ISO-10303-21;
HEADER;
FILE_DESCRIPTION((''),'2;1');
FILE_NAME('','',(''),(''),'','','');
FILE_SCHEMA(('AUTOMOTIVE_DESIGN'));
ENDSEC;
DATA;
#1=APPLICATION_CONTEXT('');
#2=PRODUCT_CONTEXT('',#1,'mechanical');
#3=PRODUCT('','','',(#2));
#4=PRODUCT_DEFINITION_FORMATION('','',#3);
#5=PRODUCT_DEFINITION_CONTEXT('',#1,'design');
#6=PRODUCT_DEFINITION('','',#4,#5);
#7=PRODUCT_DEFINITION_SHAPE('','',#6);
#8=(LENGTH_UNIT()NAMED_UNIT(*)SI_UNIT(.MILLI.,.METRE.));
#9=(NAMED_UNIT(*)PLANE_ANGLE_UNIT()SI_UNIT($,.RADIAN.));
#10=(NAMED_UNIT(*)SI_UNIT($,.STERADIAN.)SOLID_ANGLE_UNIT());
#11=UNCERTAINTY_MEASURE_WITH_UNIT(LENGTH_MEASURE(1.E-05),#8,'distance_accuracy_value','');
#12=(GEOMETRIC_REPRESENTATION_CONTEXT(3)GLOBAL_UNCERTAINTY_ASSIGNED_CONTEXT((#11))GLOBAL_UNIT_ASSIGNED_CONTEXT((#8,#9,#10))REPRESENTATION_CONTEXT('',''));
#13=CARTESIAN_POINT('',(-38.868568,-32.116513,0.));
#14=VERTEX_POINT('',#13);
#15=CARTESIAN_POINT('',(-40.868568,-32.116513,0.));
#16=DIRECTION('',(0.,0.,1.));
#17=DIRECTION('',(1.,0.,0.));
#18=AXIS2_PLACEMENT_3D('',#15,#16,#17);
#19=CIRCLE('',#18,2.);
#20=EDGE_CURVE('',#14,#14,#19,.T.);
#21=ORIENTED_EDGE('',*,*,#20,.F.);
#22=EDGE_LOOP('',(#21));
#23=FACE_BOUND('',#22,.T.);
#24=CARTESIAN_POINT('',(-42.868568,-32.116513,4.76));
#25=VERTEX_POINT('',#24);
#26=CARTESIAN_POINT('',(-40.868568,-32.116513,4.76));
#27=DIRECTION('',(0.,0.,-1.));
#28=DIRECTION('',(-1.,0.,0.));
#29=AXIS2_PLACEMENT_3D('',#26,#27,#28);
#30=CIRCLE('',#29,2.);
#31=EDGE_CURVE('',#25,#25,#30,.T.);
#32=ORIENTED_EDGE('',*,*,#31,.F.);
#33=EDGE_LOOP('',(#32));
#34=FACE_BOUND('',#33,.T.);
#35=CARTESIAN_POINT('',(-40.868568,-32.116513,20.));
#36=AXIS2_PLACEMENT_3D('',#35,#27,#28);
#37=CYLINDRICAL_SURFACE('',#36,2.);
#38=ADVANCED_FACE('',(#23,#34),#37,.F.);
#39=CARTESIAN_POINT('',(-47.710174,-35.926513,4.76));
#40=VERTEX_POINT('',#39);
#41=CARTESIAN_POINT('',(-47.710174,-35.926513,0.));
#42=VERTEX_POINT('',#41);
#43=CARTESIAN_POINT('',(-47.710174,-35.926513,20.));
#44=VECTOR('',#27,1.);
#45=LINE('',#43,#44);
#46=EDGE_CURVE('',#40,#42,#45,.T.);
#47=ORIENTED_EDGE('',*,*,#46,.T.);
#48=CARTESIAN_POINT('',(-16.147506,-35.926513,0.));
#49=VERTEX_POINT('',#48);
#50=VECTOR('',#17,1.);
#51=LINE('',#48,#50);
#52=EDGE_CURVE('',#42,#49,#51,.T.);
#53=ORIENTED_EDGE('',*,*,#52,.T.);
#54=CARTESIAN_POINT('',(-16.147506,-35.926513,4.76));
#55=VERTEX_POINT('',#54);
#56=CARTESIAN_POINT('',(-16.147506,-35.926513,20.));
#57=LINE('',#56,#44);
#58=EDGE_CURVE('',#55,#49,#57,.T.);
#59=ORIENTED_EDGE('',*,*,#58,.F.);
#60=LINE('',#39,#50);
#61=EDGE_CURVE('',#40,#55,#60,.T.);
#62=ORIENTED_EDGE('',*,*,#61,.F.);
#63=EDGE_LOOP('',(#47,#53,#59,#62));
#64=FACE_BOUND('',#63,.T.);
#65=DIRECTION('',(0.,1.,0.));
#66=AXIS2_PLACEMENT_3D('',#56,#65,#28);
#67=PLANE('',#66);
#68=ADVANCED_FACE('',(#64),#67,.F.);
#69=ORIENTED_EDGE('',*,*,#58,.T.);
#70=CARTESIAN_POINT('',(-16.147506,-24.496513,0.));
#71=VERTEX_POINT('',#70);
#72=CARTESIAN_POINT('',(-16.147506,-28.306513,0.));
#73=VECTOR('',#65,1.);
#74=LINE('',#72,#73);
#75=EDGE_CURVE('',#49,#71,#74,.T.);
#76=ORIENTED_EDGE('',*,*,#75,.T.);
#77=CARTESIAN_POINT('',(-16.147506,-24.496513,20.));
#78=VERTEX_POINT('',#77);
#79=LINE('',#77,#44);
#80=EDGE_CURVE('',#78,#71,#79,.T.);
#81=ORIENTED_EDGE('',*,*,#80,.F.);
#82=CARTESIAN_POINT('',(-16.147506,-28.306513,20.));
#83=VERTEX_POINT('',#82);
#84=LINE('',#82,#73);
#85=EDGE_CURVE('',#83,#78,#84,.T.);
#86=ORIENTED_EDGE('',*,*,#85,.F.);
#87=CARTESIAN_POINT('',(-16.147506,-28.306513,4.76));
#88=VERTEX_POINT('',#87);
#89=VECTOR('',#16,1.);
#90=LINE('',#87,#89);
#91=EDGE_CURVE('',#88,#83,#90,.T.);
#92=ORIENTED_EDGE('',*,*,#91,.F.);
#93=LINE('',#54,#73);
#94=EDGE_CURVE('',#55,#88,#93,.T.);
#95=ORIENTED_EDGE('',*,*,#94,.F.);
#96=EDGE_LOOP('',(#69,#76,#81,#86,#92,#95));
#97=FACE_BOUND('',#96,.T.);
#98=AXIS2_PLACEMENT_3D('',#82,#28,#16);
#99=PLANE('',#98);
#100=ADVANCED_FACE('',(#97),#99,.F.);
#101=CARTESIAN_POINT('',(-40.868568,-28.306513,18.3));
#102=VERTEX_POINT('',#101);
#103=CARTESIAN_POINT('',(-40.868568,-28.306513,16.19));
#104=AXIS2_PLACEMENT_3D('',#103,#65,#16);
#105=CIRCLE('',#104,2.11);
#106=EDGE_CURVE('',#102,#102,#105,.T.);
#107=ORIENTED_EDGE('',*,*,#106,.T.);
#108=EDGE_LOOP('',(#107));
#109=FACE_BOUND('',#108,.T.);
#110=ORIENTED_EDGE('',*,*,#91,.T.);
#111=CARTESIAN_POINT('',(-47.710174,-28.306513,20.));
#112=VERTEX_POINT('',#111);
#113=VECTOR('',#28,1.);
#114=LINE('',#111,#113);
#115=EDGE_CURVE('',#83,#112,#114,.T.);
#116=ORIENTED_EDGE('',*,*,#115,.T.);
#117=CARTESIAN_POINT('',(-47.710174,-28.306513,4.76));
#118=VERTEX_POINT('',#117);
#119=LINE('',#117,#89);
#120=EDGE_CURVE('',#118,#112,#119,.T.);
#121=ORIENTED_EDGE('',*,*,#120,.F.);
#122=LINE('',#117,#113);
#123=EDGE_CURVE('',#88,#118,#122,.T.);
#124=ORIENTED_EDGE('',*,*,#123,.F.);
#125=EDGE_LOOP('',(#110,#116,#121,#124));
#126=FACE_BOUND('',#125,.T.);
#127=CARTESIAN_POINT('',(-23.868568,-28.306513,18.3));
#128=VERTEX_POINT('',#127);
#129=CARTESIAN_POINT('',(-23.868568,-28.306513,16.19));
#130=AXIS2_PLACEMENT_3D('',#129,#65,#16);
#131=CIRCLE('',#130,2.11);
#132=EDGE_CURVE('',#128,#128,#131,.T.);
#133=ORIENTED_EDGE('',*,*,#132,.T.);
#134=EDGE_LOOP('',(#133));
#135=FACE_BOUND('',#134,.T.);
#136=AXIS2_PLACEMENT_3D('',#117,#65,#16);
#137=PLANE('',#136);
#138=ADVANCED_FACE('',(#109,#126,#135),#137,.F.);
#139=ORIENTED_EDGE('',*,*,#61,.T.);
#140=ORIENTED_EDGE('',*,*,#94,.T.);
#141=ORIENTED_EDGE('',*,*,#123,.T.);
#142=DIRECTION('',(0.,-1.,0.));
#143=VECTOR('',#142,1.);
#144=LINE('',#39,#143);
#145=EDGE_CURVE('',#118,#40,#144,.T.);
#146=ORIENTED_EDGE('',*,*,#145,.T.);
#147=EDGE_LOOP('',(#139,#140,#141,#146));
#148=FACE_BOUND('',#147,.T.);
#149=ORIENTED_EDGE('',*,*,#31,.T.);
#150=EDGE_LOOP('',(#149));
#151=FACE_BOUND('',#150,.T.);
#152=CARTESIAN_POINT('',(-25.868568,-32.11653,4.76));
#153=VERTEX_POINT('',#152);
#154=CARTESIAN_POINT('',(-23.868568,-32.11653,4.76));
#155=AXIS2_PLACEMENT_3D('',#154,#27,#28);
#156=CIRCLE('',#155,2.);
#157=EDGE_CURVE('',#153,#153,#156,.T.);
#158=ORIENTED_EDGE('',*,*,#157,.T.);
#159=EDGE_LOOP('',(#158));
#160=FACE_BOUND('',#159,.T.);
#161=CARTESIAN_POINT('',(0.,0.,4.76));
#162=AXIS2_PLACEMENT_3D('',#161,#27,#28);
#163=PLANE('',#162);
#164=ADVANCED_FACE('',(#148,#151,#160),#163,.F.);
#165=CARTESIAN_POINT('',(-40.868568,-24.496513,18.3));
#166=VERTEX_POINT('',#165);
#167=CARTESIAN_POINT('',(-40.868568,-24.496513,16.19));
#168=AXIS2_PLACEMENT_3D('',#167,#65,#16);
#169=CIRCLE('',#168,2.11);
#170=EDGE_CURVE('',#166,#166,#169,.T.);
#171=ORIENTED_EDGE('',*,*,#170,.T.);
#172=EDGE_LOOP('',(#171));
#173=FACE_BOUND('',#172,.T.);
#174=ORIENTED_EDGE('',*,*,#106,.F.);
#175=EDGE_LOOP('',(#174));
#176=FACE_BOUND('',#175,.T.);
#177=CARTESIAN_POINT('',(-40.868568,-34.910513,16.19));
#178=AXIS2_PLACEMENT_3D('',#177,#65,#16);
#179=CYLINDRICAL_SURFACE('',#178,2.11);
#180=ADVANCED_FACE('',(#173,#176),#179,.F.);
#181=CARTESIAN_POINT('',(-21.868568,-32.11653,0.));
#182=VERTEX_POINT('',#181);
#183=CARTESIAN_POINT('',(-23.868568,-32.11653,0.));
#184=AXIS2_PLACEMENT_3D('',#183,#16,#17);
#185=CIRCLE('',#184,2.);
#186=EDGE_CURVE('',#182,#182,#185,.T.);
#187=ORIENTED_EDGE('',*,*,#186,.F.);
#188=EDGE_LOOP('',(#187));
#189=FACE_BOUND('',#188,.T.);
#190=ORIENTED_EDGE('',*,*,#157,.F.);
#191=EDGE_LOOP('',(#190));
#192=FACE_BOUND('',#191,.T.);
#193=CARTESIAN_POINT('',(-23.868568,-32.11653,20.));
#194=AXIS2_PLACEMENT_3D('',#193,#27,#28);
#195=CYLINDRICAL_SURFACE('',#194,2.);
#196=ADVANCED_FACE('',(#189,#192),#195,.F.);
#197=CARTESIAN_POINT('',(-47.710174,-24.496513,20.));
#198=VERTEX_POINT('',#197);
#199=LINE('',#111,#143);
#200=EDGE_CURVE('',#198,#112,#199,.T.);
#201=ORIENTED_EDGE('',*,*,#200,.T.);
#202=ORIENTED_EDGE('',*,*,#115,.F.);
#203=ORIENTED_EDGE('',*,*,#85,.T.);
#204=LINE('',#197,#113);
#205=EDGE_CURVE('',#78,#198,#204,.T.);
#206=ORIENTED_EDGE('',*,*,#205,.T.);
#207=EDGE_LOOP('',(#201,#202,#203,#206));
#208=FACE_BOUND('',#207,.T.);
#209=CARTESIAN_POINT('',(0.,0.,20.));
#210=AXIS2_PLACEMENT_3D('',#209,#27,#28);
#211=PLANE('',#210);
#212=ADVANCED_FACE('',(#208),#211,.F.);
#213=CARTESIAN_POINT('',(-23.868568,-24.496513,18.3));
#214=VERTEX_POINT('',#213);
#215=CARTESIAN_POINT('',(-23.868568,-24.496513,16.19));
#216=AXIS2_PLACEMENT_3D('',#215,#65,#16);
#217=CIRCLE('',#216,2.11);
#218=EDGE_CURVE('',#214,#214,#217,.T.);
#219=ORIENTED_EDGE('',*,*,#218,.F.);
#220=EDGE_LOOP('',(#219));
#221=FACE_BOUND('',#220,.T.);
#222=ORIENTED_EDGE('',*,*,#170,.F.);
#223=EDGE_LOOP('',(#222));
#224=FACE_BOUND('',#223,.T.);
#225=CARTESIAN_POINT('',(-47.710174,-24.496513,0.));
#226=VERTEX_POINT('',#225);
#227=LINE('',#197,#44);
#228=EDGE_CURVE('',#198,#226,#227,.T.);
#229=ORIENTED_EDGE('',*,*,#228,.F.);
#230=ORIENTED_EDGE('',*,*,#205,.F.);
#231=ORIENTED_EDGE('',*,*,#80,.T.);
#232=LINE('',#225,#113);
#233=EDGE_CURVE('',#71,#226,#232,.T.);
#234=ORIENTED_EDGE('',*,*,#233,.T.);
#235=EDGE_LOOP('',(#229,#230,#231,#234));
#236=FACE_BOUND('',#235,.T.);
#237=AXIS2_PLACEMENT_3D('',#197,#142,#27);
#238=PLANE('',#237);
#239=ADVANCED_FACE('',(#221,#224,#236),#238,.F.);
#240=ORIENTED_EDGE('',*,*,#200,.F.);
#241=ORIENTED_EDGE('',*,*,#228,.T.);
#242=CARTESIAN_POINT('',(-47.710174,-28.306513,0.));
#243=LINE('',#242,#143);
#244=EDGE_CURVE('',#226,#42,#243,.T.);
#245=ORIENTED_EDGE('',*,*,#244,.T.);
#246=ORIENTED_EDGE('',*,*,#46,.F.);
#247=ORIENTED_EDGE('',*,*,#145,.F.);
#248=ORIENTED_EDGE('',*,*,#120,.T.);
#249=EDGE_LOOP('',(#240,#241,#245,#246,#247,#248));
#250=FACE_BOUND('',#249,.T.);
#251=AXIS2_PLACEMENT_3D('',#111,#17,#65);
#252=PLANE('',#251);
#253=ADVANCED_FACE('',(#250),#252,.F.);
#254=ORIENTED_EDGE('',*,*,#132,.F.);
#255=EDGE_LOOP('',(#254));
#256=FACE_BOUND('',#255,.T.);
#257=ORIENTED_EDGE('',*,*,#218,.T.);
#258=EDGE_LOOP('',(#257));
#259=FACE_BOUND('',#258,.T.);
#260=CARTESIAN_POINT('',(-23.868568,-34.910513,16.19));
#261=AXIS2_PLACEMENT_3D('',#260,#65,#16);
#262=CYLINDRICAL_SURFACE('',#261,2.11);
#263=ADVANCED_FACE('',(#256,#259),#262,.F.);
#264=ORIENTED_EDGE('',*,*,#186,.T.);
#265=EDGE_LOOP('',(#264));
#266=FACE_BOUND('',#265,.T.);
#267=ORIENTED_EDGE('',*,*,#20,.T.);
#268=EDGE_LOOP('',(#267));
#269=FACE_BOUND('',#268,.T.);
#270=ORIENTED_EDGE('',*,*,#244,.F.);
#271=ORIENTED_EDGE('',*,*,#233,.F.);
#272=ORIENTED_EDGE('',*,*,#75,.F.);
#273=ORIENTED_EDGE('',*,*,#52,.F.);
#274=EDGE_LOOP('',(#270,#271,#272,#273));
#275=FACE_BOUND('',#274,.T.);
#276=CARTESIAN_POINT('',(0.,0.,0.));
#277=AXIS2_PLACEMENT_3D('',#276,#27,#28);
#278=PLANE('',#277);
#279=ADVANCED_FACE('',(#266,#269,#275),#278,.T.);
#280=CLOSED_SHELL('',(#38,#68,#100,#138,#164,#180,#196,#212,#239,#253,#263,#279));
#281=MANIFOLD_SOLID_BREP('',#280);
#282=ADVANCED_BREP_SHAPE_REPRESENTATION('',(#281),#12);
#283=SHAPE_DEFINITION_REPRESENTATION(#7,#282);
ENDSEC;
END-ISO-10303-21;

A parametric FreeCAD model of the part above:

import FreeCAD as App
import Part
import Sketcher
Q = App.Units.Quantity


def add_polygon(sketch, points):
    """Adds a closed chain of lines whose ends are joined by coincident constraints."""
    first, n = sketch.GeometryCount, len(points)
    for a, b in zip(points, points[1:] + points[:1]):
        sketch.addGeometry(Part.LineSegment(App.Vector(*a, 0), App.Vector(*b, 0)), False)
    for i in range(n):
        sketch.addConstraint(Sketcher.Constraint("Coincident", first + i, 2, first + (i + 1) % n, 1))

doc = App.newDocument("Part")
body = doc.addObject("PartDesign::Body", "Body")

# Sketch on XY plane
sketch1 = body.newObject("Sketcher::SketchObject", "Sketch")
sketch1.AttachmentSupport = (doc.getObject("XY_Plane"), [""])
sketch1.MapMode = "FlatFace"
add_polygon(sketch1, [(-16.1, -35.9), (-16.1, -24.5), (-47.7, -24.5), (-47.7, -35.9)])  # lines 0-3
sketch1.addGeometry(Part.Circle(App.Vector(-23.9, -32.1, 0), App.Vector(0, 0, 1), 2), False)  # 4
sketch1.addGeometry(Part.Circle(App.Vector(-40.9, -32.1, 0), App.Vector(0, 0, 1), 2), False)  # 5
sketch1.addConstraint([
    Sketcher.Constraint("Vertical", 0),
    Sketcher.Constraint("Horizontal", 1),
    Sketcher.Constraint("Vertical", 2),
    Sketcher.Constraint("Horizontal", 3),
    Sketcher.Constraint("Equal", 4, 5),
    Sketcher.Constraint("DistanceY", 0, 1, 0, 2, Q("0.45 in")),
    Sketcher.Constraint("DistanceY", 5, 3, 0, 2, Q("0.3 in")),
    Sketcher.Constraint("Diameter", 4, Q("4 mm")),
    Sketcher.Constraint("DistanceX", 1, 2, 1, 1, Q("31.562669 mm")),
    Sketcher.Constraint("DistanceX", 5, 3, 4, 3, Q("17 mm")),
    Sketcher.Constraint("DistanceX", 4, 3, -1, 1, Q("23.868568 mm")),
    Sketcher.Constraint("DistanceY", 4, 3, -1, 1, Q("32.11653 mm")),
    Sketcher.Constraint("DistanceY", 5, 3, -1, 1, Q("32.116513 mm")),
    Sketcher.Constraint("DistanceX", 0, 2, -1, 1, Q("16.147506 mm")),
])
pad1 = body.newObject("PartDesign::Pad", "Pad")
pad1.Profile = sketch1
pad1.Length = 20

# Sketch on XY plane
sketch2 = body.newObject("Sketcher::SketchObject", "Sketch001")
sketch2.AttachmentSupport = (doc.getObject("XY_Plane"), [""])
sketch2.MapMode = "FlatFace"
sketch2.AttachmentOffset = App.Placement(App.Vector(0, 0, 20), App.Rotation())
add_polygon(sketch2, [(-48, -28), (-48, -36), (-16, -36), (-16, -28)])  # lines 0-3
sketch2.addConstraint([
    Sketcher.Constraint("Vertical", 0),
    Sketcher.Constraint("Horizontal", 1),
    Sketcher.Constraint("Vertical", 2),
    Sketcher.Constraint("Horizontal", 3),
    Sketcher.Constraint("DistanceY", 0, 2, 0, 1, Q("0.3 in")),
    Sketcher.Constraint("DistanceX", 1, 1, 1, 2, Q("31.562669 mm")),
    Sketcher.Constraint("DistanceX", 0, 2, -1, 1, Q("47.710174 mm")),
    Sketcher.Constraint("DistanceY", 0, 2, -1, 1, Q("35.926513 mm")),
])
pocket1 = body.newObject("PartDesign::Pocket", "Pocket")
pocket1.Profile = sketch2
pocket1.Length = Q("0.6 in")

# Sketch on XZ plane
sketch3 = body.newObject("Sketcher::SketchObject", "Sketch002")
sketch3.AttachmentSupport = (doc.getObject("XZ_Plane"), [""])
sketch3.MapMode = "FlatFace"
sketch3.AttachmentOffset = App.Placement(App.Vector(0, 0, 24.496513), App.Rotation())
sketch3.addGeometry([
    Part.Circle(App.Vector(-23.9, 16.2, 0), App.Vector(0, 0, 1), 2.1),
    Part.Circle(App.Vector(-40.9, 16.2, 0), App.Vector(0, 0, 1), 2.1),
], False)
sketch3.addConstraint([
    Sketcher.Constraint("Equal", 0, 1),
    Sketcher.Constraint("Horizontal", 0, 3, 1, 3),
    Sketcher.Constraint("Diameter", 0, Q("4.22 mm")),
    Sketcher.Constraint("DistanceY", -1, 1, 0, 3, Q("16.19 mm")),
    Sketcher.Constraint("DistanceX", 1, 3, 0, 3, Q("17 mm")),
    Sketcher.Constraint("DistanceX", 0, 3, -1, 1, Q("23.868568 mm")),
])
pocket2 = body.newObject("PartDesign::Pocket", "Pocket001")
pocket2.Profile = sketch3
pocket2.Length = Q("0.41 in")
pocket2.Reversed = True

doc.recompute()
